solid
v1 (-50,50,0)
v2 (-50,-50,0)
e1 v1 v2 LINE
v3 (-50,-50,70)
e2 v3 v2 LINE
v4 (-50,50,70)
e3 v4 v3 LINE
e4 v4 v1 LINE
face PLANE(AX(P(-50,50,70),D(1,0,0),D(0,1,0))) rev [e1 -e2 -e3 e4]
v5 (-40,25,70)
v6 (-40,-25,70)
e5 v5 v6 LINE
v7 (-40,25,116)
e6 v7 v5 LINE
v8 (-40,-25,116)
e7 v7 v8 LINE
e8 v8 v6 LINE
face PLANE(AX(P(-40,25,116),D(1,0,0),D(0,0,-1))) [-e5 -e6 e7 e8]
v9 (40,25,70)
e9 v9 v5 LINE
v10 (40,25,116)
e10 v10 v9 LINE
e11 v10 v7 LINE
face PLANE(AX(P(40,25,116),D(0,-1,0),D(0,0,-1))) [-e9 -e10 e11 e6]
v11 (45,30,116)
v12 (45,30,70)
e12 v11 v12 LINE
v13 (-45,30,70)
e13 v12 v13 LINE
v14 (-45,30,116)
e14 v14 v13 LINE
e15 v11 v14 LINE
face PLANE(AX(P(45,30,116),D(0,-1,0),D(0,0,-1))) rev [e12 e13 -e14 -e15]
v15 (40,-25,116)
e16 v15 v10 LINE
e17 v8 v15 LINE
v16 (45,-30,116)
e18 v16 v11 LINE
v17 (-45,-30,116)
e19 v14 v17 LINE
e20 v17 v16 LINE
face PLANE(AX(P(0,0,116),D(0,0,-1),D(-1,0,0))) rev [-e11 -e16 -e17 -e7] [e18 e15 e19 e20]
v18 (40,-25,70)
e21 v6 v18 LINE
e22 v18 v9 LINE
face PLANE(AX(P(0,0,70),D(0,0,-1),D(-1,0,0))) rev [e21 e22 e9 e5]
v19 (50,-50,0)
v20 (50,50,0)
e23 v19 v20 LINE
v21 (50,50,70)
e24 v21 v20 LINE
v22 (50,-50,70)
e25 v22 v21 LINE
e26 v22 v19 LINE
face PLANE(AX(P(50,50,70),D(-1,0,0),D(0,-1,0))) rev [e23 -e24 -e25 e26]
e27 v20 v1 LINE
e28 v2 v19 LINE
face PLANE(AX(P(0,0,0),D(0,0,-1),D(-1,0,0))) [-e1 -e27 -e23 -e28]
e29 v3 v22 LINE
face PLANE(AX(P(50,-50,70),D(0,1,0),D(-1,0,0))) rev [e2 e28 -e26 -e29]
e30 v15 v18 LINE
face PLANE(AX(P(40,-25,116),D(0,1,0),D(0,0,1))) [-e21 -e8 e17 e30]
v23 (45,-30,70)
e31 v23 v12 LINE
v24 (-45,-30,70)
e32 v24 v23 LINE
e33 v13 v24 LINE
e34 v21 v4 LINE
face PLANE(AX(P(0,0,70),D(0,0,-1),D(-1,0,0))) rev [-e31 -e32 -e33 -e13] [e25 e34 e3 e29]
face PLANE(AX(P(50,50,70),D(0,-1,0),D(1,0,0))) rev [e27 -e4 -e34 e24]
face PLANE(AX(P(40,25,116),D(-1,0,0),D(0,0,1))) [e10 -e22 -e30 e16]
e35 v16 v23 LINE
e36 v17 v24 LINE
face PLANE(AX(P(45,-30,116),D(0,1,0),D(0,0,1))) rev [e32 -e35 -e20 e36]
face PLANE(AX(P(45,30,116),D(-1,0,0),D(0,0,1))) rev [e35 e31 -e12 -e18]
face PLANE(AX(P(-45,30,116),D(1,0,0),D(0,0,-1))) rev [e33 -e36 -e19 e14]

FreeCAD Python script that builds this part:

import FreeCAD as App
import Part
import Sketcher
from FreeCAD import Vector

doc = App.newDocument("Part")
body = doc.addObject("PartDesign::Body", "Body")

sketch1 = body.newObject("Sketcher::SketchObject", "Sketch")
sketch1.AttachmentSupport = (doc.getObject("XY_Plane"), [""])
sketch1.MapMode = "FlatFace"
sketch1.addGeometry(Part.LineSegment(Vector(-50, 50, 0), Vector(-50, -50, 0)), False)
sketch1.addGeometry(Part.LineSegment(Vector(-50, -50, 0), Vector(50, -50, 0)), False)
sketch1.addGeometry(Part.LineSegment(Vector(50, -50, 0), Vector(50, 50, 0)), False)
sketch1.addGeometry(Part.LineSegment(Vector(50, 50, 0), Vector(-50, 50, 0)), False)
sketch1.addConstraint(Sketcher.Constraint("Coincident", 0, 2, 1, 1))
sketch1.addConstraint(Sketcher.Constraint("Coincident", 1, 2, 2, 1))
sketch1.addConstraint(Sketcher.Constraint("Coincident", 2, 2, 3, 1))
sketch1.addConstraint(Sketcher.Constraint("Coincident", 3, 2, 0, 1))
sketch1.addConstraint(Sketcher.Constraint("Vertical", 0))
sketch1.addConstraint(Sketcher.Constraint("Horizontal", 1))
sketch1.addConstraint(Sketcher.Constraint("Vertical", 2))
sketch1.addConstraint(Sketcher.Constraint("Horizontal", 3))
sketch1.addConstraint(Sketcher.Constraint("Symmetric", 0, 2, 2, 2, -1, 1))
sketch1.addConstraint(Sketcher.Constraint("Equal", 3, 0))
sketch1.addConstraint(Sketcher.Constraint("DistanceX", 1, 1, 1, 2, 100.0))
pad1 = body.newObject("PartDesign::Pad", "Pad")
pad1.Profile = sketch1
pad1.Length = 70

sketch2 = body.newObject("Sketcher::SketchObject", "Sketch001")
sketch2.AttachmentSupport = (doc.getObject("XY_Plane"), [""])
sketch2.MapMode = "FlatFace"
sketch2.AttachmentOffset = App.Placement(Vector(0, 0, 70), App.Rotation())
sketch2.addGeometry(Part.LineSegment(Vector(-45, 30, 0), Vector(-45, -30, 0)), False)
sketch2.addGeometry(Part.LineSegment(Vector(-45, -30, 0), Vector(45, -30, 0)), False)
sketch2.addGeometry(Part.LineSegment(Vector(45, -30, 0), Vector(45, 30, 0)), False)
sketch2.addGeometry(Part.LineSegment(Vector(45, 30, 0), Vector(-45, 30, 0)), False)
sketch2.addGeometry(Part.LineSegment(Vector(40, -25, 0), Vector(-40, -25, 0)), False)
sketch2.addGeometry(Part.LineSegment(Vector(-40, -25, 0), Vector(-40, 25, 0)), False)
sketch2.addGeometry(Part.LineSegment(Vector(-40, 25, 0), Vector(40, 25, 0)), False)
sketch2.addGeometry(Part.LineSegment(Vector(40, 25, 0), Vector(40, -25, 0)), False)
sketch2.addConstraint(Sketcher.Constraint("Coincident", 0, 2, 1, 1))
sketch2.addConstraint(Sketcher.Constraint("Coincident", 1, 2, 2, 1))
sketch2.addConstraint(Sketcher.Constraint("Coincident", 2, 2, 3, 1))
sketch2.addConstraint(Sketcher.Constraint("Coincident", 3, 2, 0, 1))
sketch2.addConstraint(Sketcher.Constraint("Coincident", 4, 2, 5, 1))
sketch2.addConstraint(Sketcher.Constraint("Coincident", 5, 2, 6, 1))
sketch2.addConstraint(Sketcher.Constraint("Coincident", 6, 2, 7, 1))
sketch2.addConstraint(Sketcher.Constraint("Coincident", 7, 2, 4, 1))
sketch2.addConstraint(Sketcher.Constraint("Vertical", 0))
sketch2.addConstraint(Sketcher.Constraint("Horizontal", 1))
sketch2.addConstraint(Sketcher.Constraint("Vertical", 2))
sketch2.addConstraint(Sketcher.Constraint("Horizontal", 3))
sketch2.addConstraint(Sketcher.Constraint("Horizontal", 4))
sketch2.addConstraint(Sketcher.Constraint("Vertical", 5))
sketch2.addConstraint(Sketcher.Constraint("Horizontal", 6))
sketch2.addConstraint(Sketcher.Constraint("Vertical", 7))
sketch2.addConstraint(Sketcher.Constraint("Symmetric", 0, 2, 2, 2, -1, 1))
sketch2.addConstraint(Sketcher.Constraint("Symmetric", 4, 2, 6, 2, -1, 1))
sketch2.addConstraint(Sketcher.Constraint("DistanceX", 1, 1, 1, 2, 90.0))
sketch2.addConstraint(Sketcher.Constraint("DistanceX", 4, 2, 4, 1, 80.0))
sketch2.addConstraint(Sketcher.Constraint("DistanceY", 0, 2, 0, 1, 60.0))
sketch2.addConstraint(Sketcher.Constraint("DistanceY", 5, 1, 5, 2, 50.0))
pad2 = body.newObject("PartDesign::Pad", "Pad001")
pad2.Profile = sketch2
pad2.Length = 46

doc.recompute()
